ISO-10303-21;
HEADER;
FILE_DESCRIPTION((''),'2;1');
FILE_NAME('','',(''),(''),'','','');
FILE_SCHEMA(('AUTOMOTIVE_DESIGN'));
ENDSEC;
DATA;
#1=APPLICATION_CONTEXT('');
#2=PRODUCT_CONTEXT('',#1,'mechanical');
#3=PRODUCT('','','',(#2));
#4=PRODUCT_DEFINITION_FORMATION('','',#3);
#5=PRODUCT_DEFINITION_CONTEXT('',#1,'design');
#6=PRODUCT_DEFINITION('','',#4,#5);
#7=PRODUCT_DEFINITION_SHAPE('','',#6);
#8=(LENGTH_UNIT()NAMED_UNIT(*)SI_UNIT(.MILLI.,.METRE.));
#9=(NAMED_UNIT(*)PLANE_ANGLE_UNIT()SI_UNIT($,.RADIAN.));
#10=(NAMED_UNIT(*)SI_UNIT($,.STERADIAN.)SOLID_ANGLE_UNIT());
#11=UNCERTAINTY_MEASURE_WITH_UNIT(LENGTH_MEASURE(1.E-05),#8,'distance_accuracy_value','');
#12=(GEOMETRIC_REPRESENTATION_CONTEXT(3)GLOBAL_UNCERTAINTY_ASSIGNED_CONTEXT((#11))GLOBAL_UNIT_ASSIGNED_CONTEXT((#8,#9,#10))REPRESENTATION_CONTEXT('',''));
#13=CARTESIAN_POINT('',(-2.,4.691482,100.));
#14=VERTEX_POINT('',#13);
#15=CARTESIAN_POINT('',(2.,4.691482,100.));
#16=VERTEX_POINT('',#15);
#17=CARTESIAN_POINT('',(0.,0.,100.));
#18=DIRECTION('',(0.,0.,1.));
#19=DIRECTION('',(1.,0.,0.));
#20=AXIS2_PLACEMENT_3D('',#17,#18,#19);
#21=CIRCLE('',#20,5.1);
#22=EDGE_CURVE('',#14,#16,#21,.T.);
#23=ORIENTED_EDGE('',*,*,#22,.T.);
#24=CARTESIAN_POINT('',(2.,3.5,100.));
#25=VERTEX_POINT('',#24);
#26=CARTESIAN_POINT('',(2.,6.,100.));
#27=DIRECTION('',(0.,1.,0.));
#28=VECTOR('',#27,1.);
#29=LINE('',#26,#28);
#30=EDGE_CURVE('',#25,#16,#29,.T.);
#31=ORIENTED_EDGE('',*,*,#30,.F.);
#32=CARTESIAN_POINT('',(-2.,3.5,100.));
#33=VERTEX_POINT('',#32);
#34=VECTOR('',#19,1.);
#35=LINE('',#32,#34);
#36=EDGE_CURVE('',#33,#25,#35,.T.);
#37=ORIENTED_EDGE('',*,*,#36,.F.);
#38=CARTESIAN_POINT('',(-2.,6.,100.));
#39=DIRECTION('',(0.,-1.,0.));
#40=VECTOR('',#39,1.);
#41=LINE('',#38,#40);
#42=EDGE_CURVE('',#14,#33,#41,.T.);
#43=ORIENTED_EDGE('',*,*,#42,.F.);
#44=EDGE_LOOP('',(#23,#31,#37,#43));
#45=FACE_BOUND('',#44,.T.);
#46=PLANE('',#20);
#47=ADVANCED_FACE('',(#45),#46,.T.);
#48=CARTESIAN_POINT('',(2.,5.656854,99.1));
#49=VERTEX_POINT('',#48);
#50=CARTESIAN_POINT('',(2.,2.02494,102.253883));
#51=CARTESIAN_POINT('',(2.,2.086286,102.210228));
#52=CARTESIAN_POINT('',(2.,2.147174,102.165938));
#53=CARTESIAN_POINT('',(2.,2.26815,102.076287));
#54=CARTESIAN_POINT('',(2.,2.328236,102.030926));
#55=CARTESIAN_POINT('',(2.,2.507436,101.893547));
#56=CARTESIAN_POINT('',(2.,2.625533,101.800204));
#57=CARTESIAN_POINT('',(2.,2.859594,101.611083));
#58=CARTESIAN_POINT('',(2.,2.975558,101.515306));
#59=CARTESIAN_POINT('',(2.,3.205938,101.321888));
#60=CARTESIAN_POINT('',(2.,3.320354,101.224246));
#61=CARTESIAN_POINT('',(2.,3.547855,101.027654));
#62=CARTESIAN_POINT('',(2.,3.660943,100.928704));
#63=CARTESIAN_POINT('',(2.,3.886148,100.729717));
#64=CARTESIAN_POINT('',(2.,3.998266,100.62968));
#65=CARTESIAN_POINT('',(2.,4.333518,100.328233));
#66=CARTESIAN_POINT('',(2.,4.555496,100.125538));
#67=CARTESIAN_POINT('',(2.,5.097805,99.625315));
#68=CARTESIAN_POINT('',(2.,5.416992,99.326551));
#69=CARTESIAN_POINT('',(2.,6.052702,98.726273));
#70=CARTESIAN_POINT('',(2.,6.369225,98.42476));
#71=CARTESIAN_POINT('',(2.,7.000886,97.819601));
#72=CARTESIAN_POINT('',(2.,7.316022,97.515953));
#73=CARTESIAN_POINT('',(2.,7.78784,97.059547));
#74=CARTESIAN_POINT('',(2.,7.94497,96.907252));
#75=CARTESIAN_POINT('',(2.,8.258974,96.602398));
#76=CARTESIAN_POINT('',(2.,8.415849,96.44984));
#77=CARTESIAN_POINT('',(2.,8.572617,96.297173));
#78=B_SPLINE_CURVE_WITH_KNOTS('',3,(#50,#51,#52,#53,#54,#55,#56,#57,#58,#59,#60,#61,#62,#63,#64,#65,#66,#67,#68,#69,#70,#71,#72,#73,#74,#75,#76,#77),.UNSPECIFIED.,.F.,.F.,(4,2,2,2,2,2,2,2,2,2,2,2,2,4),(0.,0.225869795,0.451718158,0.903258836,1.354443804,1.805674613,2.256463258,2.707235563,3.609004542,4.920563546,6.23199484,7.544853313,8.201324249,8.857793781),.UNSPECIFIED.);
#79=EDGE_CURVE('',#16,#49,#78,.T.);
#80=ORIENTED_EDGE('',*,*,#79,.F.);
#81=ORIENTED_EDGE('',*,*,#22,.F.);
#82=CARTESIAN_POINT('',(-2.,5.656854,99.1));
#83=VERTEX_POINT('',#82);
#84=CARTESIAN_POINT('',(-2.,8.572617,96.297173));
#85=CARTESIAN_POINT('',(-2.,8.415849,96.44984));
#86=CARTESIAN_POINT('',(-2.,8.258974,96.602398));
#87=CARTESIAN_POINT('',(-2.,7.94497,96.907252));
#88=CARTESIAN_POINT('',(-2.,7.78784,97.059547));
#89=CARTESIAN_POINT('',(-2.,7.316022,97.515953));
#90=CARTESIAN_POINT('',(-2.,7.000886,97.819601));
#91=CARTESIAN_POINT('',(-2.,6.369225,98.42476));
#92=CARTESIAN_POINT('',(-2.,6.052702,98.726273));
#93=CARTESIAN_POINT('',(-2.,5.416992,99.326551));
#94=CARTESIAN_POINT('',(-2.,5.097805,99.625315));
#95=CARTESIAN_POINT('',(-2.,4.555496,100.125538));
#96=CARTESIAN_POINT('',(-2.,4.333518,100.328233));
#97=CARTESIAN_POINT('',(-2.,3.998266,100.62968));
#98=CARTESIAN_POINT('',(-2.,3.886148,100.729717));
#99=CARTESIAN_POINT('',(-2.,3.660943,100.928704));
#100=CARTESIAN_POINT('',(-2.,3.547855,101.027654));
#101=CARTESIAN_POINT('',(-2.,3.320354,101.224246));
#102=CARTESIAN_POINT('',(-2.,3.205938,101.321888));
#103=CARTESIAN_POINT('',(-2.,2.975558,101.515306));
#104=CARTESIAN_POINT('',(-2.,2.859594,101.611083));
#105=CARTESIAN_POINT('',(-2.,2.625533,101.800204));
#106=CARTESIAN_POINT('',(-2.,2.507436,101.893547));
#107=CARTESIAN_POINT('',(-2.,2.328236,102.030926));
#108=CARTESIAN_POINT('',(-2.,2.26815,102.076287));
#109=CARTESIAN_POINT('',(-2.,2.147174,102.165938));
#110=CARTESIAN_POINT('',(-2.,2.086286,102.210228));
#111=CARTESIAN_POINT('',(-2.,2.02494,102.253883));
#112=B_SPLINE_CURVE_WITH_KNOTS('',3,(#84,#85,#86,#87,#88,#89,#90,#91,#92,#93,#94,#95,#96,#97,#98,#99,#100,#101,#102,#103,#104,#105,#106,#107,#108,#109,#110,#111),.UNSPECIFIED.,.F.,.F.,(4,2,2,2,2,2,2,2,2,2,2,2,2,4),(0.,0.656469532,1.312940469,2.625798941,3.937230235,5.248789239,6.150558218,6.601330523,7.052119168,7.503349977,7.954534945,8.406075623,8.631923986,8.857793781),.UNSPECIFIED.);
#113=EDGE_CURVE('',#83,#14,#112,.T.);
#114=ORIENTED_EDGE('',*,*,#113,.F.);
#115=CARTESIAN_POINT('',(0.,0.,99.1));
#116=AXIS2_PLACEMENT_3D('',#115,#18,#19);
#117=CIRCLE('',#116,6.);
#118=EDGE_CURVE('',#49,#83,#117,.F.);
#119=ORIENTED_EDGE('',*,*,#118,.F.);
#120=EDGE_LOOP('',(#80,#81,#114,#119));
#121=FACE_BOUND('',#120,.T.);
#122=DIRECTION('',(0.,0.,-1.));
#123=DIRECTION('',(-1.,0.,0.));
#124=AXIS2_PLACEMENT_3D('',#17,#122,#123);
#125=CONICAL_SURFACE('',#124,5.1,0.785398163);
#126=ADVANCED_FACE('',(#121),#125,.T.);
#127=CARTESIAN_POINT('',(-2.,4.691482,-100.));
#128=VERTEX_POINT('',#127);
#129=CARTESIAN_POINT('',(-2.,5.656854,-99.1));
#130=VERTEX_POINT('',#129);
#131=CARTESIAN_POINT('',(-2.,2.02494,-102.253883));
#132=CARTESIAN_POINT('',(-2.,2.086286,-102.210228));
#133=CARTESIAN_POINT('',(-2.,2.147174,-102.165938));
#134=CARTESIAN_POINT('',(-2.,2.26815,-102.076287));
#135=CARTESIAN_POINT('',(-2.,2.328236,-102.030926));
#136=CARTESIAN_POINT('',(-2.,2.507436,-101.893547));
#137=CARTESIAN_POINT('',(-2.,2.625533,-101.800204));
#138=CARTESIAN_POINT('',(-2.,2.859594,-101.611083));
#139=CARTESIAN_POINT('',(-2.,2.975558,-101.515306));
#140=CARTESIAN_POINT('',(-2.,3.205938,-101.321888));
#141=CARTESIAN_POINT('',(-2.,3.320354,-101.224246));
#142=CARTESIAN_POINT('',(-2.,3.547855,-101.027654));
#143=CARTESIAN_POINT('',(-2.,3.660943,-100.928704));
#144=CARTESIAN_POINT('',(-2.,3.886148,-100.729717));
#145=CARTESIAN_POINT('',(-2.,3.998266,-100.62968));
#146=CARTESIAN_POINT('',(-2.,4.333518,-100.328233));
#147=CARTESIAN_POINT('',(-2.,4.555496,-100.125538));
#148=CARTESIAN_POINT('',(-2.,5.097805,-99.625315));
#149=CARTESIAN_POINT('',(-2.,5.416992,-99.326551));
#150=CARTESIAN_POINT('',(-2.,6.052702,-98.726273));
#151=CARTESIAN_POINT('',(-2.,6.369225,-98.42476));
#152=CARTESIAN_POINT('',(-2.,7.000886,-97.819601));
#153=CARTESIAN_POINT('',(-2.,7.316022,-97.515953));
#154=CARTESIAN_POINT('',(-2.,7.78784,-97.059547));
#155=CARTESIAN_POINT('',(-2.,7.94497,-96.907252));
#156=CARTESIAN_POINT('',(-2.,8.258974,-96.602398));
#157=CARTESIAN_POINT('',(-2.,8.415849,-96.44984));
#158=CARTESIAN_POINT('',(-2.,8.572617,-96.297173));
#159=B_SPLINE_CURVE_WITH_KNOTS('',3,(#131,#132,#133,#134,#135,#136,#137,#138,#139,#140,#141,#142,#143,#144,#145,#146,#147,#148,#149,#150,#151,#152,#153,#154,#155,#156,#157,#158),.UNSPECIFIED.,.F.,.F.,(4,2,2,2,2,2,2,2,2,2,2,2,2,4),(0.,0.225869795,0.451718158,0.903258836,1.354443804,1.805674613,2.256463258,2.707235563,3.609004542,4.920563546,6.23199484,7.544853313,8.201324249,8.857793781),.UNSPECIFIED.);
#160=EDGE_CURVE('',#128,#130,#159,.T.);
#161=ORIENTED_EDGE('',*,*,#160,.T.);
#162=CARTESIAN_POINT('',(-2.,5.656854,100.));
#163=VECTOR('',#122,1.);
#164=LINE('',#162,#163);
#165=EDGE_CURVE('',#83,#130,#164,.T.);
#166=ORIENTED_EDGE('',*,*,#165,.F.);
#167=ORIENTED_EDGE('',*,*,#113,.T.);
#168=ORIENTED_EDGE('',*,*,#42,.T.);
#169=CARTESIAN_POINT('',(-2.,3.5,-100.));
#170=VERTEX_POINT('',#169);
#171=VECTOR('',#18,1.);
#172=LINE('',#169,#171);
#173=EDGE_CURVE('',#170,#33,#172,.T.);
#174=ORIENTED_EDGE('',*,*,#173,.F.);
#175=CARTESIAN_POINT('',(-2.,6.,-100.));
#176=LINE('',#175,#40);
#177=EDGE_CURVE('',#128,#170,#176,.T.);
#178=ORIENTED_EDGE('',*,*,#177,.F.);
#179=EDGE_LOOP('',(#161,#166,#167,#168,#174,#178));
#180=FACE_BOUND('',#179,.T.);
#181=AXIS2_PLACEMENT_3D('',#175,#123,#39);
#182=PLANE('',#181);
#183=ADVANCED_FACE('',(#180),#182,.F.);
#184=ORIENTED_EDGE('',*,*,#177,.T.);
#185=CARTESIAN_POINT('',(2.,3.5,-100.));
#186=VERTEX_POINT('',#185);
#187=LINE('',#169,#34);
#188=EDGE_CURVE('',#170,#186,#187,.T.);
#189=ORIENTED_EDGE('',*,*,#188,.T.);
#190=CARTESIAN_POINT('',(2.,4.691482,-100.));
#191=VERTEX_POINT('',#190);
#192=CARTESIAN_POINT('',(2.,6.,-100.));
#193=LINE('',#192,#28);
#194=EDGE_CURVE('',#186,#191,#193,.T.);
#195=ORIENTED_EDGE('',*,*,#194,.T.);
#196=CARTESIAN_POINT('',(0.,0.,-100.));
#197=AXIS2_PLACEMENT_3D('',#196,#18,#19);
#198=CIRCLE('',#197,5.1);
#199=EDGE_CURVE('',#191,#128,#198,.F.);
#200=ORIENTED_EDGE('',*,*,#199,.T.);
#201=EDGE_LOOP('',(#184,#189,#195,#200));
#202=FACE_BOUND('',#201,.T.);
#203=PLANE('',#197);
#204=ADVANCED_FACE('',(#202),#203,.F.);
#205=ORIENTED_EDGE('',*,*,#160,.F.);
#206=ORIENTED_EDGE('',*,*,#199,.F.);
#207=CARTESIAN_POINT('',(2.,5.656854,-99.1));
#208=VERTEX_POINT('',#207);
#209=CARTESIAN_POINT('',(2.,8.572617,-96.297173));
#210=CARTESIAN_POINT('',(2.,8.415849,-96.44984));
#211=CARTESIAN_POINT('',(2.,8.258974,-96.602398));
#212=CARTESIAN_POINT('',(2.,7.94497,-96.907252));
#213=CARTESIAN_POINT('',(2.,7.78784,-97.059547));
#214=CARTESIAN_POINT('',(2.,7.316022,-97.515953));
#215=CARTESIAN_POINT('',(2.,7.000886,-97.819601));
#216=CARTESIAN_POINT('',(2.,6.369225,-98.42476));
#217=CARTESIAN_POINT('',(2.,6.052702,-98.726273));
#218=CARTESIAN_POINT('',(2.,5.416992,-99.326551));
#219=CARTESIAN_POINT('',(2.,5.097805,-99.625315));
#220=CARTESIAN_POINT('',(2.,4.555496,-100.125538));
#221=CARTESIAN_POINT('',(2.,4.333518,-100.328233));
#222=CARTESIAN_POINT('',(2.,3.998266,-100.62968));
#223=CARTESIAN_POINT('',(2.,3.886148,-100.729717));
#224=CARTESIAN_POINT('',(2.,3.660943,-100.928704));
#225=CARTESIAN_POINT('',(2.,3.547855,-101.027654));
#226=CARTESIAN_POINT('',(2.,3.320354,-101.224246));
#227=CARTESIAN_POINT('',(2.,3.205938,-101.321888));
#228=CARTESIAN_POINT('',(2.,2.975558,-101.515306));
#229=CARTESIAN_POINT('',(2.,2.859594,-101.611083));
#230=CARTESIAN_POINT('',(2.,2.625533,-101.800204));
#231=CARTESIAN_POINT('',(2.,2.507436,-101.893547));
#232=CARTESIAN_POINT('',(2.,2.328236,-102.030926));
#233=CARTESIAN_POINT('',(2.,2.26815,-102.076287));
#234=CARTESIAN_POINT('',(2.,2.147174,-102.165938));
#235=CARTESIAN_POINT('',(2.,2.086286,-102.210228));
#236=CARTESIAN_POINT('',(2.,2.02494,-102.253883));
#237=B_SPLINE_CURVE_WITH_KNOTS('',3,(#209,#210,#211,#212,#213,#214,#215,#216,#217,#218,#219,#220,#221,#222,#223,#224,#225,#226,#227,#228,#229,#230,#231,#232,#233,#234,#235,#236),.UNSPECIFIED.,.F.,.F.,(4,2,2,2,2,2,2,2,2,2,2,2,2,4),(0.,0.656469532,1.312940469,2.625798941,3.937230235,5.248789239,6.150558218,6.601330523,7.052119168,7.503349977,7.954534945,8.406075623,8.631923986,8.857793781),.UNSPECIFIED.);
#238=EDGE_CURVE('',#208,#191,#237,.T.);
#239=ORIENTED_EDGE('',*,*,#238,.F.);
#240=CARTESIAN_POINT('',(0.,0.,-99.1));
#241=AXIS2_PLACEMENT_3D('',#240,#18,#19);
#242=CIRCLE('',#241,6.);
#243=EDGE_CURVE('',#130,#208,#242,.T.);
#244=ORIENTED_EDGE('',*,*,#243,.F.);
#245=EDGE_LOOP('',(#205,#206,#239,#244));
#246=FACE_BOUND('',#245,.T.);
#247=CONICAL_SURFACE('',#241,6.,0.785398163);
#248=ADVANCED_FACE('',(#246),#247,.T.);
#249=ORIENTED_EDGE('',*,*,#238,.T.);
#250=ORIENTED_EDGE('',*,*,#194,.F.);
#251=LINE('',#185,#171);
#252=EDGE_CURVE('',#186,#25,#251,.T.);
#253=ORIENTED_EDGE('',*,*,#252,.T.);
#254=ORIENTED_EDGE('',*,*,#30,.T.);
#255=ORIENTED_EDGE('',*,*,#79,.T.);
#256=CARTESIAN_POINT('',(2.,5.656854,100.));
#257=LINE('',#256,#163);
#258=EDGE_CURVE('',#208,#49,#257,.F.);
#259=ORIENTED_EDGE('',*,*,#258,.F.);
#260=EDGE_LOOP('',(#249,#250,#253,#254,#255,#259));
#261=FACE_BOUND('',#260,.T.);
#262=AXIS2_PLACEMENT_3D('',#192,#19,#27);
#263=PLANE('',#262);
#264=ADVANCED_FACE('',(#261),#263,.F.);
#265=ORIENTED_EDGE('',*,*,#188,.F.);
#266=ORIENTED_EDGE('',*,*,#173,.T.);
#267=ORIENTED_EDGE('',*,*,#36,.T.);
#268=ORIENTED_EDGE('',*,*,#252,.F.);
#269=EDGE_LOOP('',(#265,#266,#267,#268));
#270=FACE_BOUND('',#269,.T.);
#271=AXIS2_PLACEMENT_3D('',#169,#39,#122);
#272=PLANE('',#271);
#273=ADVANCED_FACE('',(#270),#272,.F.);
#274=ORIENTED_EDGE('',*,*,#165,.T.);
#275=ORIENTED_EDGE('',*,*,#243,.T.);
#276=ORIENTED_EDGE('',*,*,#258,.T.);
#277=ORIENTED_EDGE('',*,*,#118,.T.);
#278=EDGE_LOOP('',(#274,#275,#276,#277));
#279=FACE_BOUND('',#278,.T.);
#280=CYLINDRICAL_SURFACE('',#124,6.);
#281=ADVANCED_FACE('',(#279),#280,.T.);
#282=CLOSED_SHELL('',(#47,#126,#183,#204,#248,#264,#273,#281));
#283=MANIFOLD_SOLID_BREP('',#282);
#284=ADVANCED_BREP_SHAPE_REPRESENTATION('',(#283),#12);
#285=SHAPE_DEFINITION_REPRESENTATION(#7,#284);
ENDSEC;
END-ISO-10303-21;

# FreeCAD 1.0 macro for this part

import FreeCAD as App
import Part
import Sketcher


def edges_at(feature, points):
    """Names of the edges that pass closest to the given points."""
    edges = feature.Shape.Edges
    near = lambda p: min(range(len(edges)), key=lambda i: edges[i].distToShape(Part.Vertex(*p))[0])
    return sorted({f"Edge{near(p) + 1}" for p in points})

doc = App.newDocument("Part")
body = doc.addObject("PartDesign::Body", "Body")

# Sketch on XY plane
sketch1 = doc.addObject("Sketcher::SketchObject", "Sketch")
body.addObject(sketch1)
sketch1.AttachmentSupport = (doc.XY_Plane, [""])
sketch1.MapMode = "FlatFace"
sketch1.addGeometry(Part.Circle(App.Vector(0, 0, 0), App.Vector(0, 0, 1), 6), False)
sketch1.addConstraint([
    Sketcher.Constraint("Coincident", 0, 3, -1, 1),
    Sketcher.Constraint("Diameter", 0, 12.0),
])
pad1 = doc.addObject("PartDesign::Pad", "Pad")
body.addObject(pad1)
pad1.Profile = sketch1
pad1.Length = 200
pad1.Midplane = True
doc.recompute()

chamfer = doc.addObject("PartDesign::Chamfer", "Chamfer")
body.addObject(chamfer)
chamfer.Base = (pad1, edges_at(pad1, [(-6, 0, -100), (-6, 0, 100)]))
chamfer.Size = 0.9

# Sketch on XY plane
sketch2 = doc.addObject("Sketcher::SketchObject", "Sketch001")
body.addObject(sketch2)
sketch2.AttachmentSupport = (doc.XY_Plane, [""])
sketch2.MapMode = "FlatFace"
sketch2.addGeometry([
    Part.LineSegment(App.Vector(-2, 6, 0), App.Vector(-2, 3.5, 0)),
    Part.LineSegment(App.Vector(-2, 3.5, 0), App.Vector(2, 3.5, 0)),
    Part.LineSegment(App.Vector(2, 3.5, 0), App.Vector(2, 6, 0)),
    Part.LineSegment(App.Vector(2, 6, 0), App.Vector(-2, 6, 0)),
], False)
sketch2.addConstraint([
    Sketcher.Constraint("Coincident", 0, 2, 1, 1),
    Sketcher.Constraint("Coincident", 1, 2, 2, 1),
    Sketcher.Constraint("Coincident", 2, 2, 3, 1),
    Sketcher.Constraint("Coincident", 3, 2, 0, 1),
    Sketcher.Constraint("Vertical", 0),
    Sketcher.Constraint("Horizontal", 1),
    Sketcher.Constraint("Vertical", 2),
    Sketcher.Constraint("Horizontal", 3),
    Sketcher.Constraint("DistanceX", 1, 1, 1, 2, 4.0),
    Sketcher.Constraint("DistanceY", 0, 2, 0, 1, 2.5),
    Sketcher.Constraint("DistanceX", 0, 2, -1, 1, 2.0),
    Sketcher.Constraint("DistanceY", -1, 1, 2, 2, 6.0),
])
pocket1 = doc.addObject("PartDesign::Pocket", "Pocket")
body.addObject(pocket1)
pocket1.Profile = sketch2
pocket1.Type = "ThroughAll"
pocket1.Midplane = True

doc.recompute()
